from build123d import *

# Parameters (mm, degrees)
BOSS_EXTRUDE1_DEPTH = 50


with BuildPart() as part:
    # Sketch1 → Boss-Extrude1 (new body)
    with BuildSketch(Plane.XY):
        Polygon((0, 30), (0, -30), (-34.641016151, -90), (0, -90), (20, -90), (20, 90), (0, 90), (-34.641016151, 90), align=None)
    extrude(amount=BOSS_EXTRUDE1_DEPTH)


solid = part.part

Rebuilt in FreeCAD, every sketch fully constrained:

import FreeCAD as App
import Part
import Sketcher
Q = App.Units.Quantity


def add_polygon(sketch, points):
    """Adds a closed chain of lines whose ends are joined by coincident constraints."""
    first, n = sketch.GeometryCount, len(points)
    for a, b in zip(points, points[1:] + points[:1]):
        sketch.addGeometry(Part.LineSegment(App.Vector(*a, 0), App.Vector(*b, 0)), False)
    for i in range(n):
        sketch.addConstraint(Sketcher.Constraint("Coincident", first + i, 2, first + (i + 1) % n, 1))

doc = App.newDocument("Part")
body = doc.addObject("PartDesign::Body", "Body")

# Sketch on XY plane
sketch1 = doc.addObject("Sketcher::SketchObject", "Sketch")
body.addObject(sketch1)
sketch1.AttachmentSupport = (doc.XY_Plane, [""])
sketch1.MapMode = "FlatFace"
add_polygon(sketch1, [(0, 30), (0, -30), (-35, -90), (20, -90), (20, 90), (-35, 90)])  # lines 0-5
sketch1.addConstraint([
    Sketcher.Constraint("Vertical", 0),
    Sketcher.Constraint("Horizontal", 2),
    Sketcher.Constraint("Vertical", 3),
    Sketcher.Constraint("Horizontal", 4),
    Sketcher.Constraint("Symmetric", 0, 2, 5, 2, -1, 1),
    Sketcher.Constraint("Symmetric", 1, 2, 4, 2, -1),
    Sketcher.Constraint("DistanceY", 0, 2, 0, 1, 60.0),
    Sketcher.Constraint("DistanceY", 3, 1, 3, 2, 180.0),
    Sketcher.Constraint("Angle", 1, Q("-120 deg")),
    Sketcher.Constraint("DistanceX", -1, 1, 2, 2, 20.0),
])
pad1 = doc.addObject("PartDesign::Pad", "Pad")
body.addObject(pad1)
pad1.Profile = sketch1
pad1.Length = 50

doc.recompute()
